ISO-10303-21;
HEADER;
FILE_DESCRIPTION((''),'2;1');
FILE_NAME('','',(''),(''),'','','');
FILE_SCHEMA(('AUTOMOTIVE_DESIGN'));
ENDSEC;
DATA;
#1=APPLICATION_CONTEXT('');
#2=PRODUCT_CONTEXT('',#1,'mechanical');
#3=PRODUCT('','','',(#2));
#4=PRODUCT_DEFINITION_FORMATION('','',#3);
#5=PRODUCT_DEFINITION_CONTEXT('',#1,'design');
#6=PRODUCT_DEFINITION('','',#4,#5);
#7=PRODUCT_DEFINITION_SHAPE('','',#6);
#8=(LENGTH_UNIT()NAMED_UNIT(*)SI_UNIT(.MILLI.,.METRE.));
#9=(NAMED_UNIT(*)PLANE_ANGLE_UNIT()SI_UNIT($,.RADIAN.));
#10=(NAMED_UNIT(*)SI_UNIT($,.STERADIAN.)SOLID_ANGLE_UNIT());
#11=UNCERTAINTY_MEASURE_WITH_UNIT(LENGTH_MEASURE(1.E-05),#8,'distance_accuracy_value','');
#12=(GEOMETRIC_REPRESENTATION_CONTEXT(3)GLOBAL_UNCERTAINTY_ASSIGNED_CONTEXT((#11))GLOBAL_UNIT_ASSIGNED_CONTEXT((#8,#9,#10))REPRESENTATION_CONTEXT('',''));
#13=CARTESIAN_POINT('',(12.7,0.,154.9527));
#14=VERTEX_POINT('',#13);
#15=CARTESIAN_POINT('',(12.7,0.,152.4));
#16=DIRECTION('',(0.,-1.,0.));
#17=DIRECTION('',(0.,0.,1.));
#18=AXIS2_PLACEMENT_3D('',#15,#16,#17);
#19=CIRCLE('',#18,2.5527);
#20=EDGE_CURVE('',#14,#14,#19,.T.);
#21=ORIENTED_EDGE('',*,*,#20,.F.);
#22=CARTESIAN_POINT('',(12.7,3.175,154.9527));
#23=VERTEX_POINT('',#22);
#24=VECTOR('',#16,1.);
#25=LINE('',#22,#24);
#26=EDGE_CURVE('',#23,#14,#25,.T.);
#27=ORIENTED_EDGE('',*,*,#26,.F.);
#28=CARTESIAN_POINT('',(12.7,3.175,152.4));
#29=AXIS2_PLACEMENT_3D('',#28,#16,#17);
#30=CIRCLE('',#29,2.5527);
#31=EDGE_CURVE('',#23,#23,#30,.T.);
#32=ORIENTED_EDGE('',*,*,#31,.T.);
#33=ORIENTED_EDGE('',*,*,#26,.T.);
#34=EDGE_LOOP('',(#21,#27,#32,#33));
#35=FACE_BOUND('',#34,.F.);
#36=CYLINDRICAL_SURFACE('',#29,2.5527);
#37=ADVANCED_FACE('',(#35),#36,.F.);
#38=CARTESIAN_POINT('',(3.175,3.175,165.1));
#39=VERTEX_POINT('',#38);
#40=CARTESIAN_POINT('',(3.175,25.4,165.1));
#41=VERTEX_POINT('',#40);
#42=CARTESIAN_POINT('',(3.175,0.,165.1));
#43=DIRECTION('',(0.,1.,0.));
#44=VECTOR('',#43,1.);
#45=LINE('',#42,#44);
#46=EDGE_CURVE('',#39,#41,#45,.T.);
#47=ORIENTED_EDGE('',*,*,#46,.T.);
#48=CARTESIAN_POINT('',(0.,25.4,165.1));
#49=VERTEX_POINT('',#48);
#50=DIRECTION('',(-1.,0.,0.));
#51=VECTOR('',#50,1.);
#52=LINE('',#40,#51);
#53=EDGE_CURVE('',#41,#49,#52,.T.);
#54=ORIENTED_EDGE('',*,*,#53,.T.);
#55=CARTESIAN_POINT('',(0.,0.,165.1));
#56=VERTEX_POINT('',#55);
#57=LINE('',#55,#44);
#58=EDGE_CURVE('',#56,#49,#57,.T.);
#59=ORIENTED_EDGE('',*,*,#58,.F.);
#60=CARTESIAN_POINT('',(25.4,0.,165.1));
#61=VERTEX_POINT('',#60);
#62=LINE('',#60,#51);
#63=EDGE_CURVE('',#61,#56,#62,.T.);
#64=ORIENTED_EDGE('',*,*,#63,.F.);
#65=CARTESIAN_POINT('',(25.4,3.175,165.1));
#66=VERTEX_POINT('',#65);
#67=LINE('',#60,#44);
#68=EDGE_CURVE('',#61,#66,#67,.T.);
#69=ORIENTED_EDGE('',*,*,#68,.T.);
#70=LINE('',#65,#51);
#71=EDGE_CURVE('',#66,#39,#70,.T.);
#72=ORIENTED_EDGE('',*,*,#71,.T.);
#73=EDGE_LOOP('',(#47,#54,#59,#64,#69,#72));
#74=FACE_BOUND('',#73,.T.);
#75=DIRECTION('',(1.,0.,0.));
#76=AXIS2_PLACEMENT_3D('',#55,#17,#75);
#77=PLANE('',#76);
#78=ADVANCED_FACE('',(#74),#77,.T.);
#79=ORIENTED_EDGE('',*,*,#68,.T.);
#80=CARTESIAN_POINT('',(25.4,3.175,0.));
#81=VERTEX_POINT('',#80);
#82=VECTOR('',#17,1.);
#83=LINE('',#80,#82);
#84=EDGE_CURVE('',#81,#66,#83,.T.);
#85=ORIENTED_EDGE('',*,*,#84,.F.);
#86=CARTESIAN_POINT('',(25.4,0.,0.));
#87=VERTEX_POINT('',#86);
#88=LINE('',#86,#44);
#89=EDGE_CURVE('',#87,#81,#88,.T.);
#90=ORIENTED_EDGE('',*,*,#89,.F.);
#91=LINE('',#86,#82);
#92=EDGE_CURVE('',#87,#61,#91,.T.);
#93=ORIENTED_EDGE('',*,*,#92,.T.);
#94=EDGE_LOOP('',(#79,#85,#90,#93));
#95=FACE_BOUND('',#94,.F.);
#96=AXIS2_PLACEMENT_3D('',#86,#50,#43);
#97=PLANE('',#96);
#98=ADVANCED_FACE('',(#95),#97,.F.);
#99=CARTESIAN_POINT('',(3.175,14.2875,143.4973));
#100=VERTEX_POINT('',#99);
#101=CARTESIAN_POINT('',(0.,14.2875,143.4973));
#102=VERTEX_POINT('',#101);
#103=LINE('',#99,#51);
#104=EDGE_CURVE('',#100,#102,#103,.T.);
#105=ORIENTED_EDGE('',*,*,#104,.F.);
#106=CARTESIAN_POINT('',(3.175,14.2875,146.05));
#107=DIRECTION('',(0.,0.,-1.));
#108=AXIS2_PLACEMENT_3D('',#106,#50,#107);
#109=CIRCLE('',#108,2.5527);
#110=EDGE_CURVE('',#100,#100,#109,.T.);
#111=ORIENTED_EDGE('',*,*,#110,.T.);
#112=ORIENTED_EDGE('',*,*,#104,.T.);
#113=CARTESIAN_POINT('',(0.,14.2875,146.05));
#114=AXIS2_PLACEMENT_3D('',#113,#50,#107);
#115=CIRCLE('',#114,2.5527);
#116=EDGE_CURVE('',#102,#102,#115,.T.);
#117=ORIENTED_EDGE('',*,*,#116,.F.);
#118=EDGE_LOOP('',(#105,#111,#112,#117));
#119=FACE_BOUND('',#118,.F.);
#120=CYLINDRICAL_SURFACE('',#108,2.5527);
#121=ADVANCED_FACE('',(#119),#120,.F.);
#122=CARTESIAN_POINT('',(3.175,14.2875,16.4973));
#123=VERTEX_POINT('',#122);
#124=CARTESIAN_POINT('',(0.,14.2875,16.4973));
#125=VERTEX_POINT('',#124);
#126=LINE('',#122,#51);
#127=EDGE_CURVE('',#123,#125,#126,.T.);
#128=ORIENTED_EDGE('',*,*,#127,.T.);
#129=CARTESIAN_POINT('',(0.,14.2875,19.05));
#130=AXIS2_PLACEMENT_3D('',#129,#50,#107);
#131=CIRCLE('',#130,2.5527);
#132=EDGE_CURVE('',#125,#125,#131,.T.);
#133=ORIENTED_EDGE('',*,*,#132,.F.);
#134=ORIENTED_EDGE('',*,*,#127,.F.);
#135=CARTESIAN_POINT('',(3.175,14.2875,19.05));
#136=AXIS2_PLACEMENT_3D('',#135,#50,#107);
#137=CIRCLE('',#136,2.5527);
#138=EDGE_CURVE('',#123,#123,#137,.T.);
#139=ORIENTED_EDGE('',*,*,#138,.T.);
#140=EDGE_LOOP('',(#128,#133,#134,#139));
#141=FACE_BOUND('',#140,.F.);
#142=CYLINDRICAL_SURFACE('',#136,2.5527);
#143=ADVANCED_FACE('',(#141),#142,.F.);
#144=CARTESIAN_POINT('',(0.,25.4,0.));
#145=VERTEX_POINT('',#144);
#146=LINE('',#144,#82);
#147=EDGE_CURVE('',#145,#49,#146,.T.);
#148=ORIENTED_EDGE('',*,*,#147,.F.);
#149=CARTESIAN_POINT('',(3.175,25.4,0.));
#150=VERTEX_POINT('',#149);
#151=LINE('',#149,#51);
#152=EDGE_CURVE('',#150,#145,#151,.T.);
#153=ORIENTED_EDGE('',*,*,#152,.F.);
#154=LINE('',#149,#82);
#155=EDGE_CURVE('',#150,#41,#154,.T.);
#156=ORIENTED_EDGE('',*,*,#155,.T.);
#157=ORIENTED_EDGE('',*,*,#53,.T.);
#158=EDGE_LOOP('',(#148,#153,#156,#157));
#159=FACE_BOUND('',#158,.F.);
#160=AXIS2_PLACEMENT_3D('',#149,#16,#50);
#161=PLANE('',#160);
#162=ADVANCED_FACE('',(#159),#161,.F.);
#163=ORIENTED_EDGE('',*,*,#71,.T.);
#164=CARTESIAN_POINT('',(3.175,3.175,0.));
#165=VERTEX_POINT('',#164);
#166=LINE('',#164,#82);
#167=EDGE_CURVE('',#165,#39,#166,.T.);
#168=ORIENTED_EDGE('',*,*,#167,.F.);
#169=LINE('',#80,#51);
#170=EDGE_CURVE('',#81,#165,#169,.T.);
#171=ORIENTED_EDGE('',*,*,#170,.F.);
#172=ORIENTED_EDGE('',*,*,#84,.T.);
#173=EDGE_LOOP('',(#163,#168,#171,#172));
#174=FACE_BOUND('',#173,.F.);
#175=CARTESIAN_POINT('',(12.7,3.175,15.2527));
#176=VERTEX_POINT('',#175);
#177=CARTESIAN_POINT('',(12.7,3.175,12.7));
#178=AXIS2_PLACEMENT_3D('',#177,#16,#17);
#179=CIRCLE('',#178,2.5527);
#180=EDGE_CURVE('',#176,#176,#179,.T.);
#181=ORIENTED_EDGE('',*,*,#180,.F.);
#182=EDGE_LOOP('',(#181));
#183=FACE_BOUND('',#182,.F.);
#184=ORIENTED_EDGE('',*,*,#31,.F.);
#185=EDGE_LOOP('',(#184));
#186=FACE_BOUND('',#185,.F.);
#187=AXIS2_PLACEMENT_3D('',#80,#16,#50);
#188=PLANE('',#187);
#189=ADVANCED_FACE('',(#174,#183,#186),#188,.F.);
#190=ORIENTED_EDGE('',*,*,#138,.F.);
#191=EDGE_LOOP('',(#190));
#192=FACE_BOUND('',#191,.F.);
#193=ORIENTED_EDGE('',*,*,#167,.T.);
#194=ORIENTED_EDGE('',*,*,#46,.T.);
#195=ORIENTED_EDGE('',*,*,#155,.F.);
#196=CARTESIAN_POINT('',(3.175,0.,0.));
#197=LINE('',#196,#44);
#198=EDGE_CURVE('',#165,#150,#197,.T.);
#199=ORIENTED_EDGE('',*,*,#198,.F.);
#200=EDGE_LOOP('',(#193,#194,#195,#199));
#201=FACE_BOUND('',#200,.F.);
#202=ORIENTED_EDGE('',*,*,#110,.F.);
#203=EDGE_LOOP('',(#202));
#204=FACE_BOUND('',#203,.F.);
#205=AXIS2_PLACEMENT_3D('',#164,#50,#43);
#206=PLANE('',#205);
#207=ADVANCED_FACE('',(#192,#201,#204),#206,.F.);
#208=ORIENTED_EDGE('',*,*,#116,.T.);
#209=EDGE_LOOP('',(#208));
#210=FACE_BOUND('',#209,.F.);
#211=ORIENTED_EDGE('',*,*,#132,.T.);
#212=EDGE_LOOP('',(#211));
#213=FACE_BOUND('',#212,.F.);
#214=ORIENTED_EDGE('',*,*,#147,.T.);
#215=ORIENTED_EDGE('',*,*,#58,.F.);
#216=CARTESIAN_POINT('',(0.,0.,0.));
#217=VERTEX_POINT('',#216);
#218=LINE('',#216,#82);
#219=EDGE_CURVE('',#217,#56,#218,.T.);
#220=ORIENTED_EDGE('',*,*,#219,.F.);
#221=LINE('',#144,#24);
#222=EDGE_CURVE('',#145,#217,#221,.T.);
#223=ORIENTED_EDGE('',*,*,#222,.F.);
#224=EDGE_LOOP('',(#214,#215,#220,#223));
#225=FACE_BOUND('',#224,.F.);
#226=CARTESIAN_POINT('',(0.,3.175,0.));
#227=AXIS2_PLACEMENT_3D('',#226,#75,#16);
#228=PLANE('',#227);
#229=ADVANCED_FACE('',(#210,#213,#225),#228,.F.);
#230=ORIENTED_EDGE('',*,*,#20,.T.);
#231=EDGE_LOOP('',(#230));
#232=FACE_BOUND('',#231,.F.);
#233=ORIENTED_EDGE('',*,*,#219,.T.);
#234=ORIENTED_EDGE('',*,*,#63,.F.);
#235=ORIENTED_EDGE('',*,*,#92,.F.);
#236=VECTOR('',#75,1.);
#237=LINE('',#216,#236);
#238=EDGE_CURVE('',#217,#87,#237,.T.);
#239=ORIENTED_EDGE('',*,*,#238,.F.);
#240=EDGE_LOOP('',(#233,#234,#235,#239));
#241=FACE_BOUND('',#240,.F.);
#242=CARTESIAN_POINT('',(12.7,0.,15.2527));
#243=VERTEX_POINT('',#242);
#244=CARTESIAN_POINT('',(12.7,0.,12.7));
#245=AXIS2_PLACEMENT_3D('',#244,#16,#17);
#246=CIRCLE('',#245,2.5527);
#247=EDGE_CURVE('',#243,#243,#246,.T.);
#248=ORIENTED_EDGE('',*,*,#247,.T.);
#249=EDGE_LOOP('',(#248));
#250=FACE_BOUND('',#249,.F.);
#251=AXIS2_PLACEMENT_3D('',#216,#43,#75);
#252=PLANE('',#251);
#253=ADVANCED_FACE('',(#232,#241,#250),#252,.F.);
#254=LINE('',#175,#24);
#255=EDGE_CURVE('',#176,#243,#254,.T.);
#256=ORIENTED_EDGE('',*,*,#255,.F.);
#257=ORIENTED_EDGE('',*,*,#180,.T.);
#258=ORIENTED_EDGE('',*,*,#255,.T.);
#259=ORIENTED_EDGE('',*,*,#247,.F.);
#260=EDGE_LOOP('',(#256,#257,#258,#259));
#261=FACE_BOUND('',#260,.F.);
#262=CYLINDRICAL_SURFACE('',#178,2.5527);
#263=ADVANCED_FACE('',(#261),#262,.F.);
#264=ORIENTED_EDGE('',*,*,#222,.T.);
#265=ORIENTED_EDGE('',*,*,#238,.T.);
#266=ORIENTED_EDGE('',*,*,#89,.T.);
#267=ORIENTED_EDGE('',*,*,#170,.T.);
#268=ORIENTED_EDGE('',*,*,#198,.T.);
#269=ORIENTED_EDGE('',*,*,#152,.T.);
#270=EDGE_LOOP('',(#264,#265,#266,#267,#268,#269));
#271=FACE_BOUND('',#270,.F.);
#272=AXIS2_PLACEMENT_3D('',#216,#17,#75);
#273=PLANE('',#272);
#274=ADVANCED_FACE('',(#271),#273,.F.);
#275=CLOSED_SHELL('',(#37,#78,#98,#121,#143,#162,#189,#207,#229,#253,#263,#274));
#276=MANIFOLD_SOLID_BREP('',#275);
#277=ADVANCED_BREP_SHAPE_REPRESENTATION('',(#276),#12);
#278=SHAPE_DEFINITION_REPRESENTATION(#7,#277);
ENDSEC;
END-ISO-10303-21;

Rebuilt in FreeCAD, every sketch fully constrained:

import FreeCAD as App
import Part
import Sketcher
Q = App.Units.Quantity

doc = App.newDocument("Part")
body = doc.addObject("PartDesign::Body", "Body")

sketch1 = body.newObject("Sketcher::SketchObject", "Sketch")
sketch1.AttachmentSupport = (doc.getObject("XY_Plane"), [""])
sketch1.MapMode = "FlatFace"
sketch1.addGeometry([
    Part.LineSegment(App.Vector(0, 0, 0), App.Vector(25.4, 0, 0)),
    Part.LineSegment(App.Vector(25.4, 0, 0), App.Vector(25.4, 3.175, 0)),
    Part.LineSegment(App.Vector(25.4, 3.175, 0), App.Vector(3.175, 3.175, 0)),
    Part.LineSegment(App.Vector(3.175, 3.175, 0), App.Vector(3.175, 25.4, 0)),
    Part.LineSegment(App.Vector(3.175, 25.4, 0), App.Vector(0, 25.4, 0)),
    Part.LineSegment(App.Vector(0, 25.4, 0), App.Vector(0, 0, 0)),
], False)
sketch1.addConstraint([
    Sketcher.Constraint("Coincident", 0, 2, 1, 1),
    Sketcher.Constraint("Coincident", 1, 2, 2, 1),
    Sketcher.Constraint("Coincident", 2, 2, 3, 1),
    Sketcher.Constraint("Coincident", 3, 2, 4, 1),
    Sketcher.Constraint("Coincident", 4, 2, 5, 1),
    Sketcher.Constraint("Coincident", 5, 2, 0, 1),
    Sketcher.Constraint("Horizontal", 0),
    Sketcher.Constraint("Vertical", 1),
    Sketcher.Constraint("Horizontal", 2),
    Sketcher.Constraint("Vertical", 3),
    Sketcher.Constraint("Horizontal", 4),
    Sketcher.Constraint("Vertical", 5),
    Sketcher.Constraint("Coincident", 5, 2, -1, 1),
    Sketcher.Constraint("Equal", 4, 1),
    Sketcher.Constraint("Equal", 2, 3),
    Sketcher.Constraint("DistanceX", 0, 1, 0, 2, Q("1 in")),
    Sketcher.Constraint("DistanceX", 4, 2, 4, 1, Q("0.125 in")),
])
pad1 = body.newObject("PartDesign::Pad", "Pad")
pad1.Profile = sketch1
pad1.Length = Q("6.5 in")

sketch2 = body.newObject("Sketcher::SketchObject", "Sketch001")
sketch2.AttachmentSupport = (doc.getObject("YZ_Plane"), [""])
sketch2.MapMode = "FlatFace"
sketch2.AttachmentOffset = App.Placement(App.Vector(0, 0, 0.125 * 25.4), App.Rotation())
sketch2.addGeometry([
    Part.Circle(App.Vector(14.2875, 146.05, 0), App.Vector(0, 0, 1), 2.5527),
    Part.Circle(App.Vector(14.2875, 19.05, 0), App.Vector(0, 0, 1), 2.5527),
], False)
sketch2.addConstraint([
    Sketcher.Constraint("Equal", 0, 1),
    Sketcher.Constraint("Vertical", 0, 3, 1, 3),
    Sketcher.Constraint("Diameter", 0, Q("0.201 in")),
    Sketcher.Constraint("DistanceY", 1, 3, 0, 3, Q("5 in")),
    Sketcher.Constraint("DistanceY", -1, 1, 0, 3, Q("5.75 in")),
    Sketcher.Constraint("DistanceX", -1, 1, 0, 3, Q("0.5625 in")),
])
doc.recompute()
hole = body.newObject("PartDesign::Hole", "Hole")
hole.Profile = sketch2
hole.ThreadType = "None"
hole.Diameter = Q("0.201 in")
hole.DepthType = "ThroughAll"

sketch3 = body.newObject("Sketcher::SketchObject", "Sketch002")
sketch3.AttachmentSupport = (doc.getObject("XZ_Plane"), [""])
sketch3.MapMode = "FlatFace"
sketch3.AttachmentOffset = App.Placement(App.Vector(0, 0, -0.125 * 25.4), App.Rotation())
sketch3.addGeometry([
    Part.Circle(App.Vector(12.7, 152.4, 0), App.Vector(0, 0, 1), 2.5527),
    Part.Circle(App.Vector(12.7, 12.7, 0), App.Vector(0, 0, 1), 2.5527),
], False)
sketch3.addConstraint([
    Sketcher.Constraint("Equal", 0, 1),
    Sketcher.Constraint("Vertical", 0, 3, 1, 3),
    Sketcher.Constraint("Diameter", 0, Q("0.201 in")),
    Sketcher.Constraint("DistanceY", -1, 1, 0, 3, Q("6 in")),
    Sketcher.Constraint("DistanceX", -1, 1, 0, 3, Q("0.5 in")),
    Sketcher.Constraint("DistanceY", -1, 1, 1, 3, Q("0.5 in")),
])
doc.recompute()
hole2 = body.newObject("PartDesign::Hole", "Hole001")
hole2.Profile = sketch3
hole2.ThreadType = "None"
hole2.Diameter = Q("0.201 in")
hole2.DepthType = "ThroughAll"
hole2.Reversed = True

doc.recompute()
